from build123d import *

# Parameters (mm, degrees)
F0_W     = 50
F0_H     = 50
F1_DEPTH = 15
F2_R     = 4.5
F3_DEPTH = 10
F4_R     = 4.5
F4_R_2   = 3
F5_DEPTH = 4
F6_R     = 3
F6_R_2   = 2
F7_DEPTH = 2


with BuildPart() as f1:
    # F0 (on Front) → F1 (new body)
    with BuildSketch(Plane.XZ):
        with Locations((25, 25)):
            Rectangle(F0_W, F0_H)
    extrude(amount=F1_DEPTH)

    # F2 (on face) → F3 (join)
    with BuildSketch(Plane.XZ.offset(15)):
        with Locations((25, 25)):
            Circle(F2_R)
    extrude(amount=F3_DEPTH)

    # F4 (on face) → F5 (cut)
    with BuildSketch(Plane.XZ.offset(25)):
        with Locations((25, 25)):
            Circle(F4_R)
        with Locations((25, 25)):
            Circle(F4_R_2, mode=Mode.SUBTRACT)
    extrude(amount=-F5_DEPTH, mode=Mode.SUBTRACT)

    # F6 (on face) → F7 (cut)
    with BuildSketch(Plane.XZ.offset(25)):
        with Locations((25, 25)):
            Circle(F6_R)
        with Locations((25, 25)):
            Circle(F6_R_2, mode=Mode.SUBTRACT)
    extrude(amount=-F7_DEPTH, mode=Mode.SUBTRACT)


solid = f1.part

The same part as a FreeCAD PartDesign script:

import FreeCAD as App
import Part
import Sketcher

doc = App.newDocument("Part")
body = doc.addObject("PartDesign::Body", "Body")

# Sketch on XZ plane
sketch1 = body.newObject("Sketcher::SketchObject", "Sketch")
sketch1.AttachmentSupport = (doc.getObject("XZ_Plane"), [""])
sketch1.MapMode = "FlatFace"
sketch1.addGeometry(Part.LineSegment(App.Vector(0, 50, 0), App.Vector(0, 0, 0)), False)
sketch1.addGeometry(Part.LineSegment(App.Vector(0, 0, 0), App.Vector(50, 0, 0)), False)
sketch1.addGeometry(Part.LineSegment(App.Vector(50, 0, 0), App.Vector(50, 50, 0)), False)
sketch1.addGeometry(Part.LineSegment(App.Vector(50, 50, 0), App.Vector(0, 50, 0)), False)
sketch1.addConstraint(Sketcher.Constraint("Coincident", 0, 2, 1, 1))
sketch1.addConstraint(Sketcher.Constraint("Coincident", 1, 2, 2, 1))
sketch1.addConstraint(Sketcher.Constraint("Coincident", 2, 2, 3, 1))
sketch1.addConstraint(Sketcher.Constraint("Coincident", 3, 2, 0, 1))
sketch1.addConstraint(Sketcher.Constraint("Vertical", 0))
sketch1.addConstraint(Sketcher.Constraint("Horizontal", 1))
sketch1.addConstraint(Sketcher.Constraint("Vertical", 2))
sketch1.addConstraint(Sketcher.Constraint("Horizontal", 3))
sketch1.addConstraint(Sketcher.Constraint("Coincident", 0, 2, -1, 1))
sketch1.addConstraint(Sketcher.Constraint("Equal", 3, 0))
sketch1.addConstraint(Sketcher.Constraint("DistanceX", 1, 1, 1, 2, 50.0))
pad1 = body.newObject("PartDesign::Pad", "Pad")
pad1.Profile = sketch1
pad1.Length = 15

# Sketch on XZ plane
sketch2 = body.newObject("Sketcher::SketchObject", "Sketch001")
sketch2.AttachmentSupport = (doc.getObject("XZ_Plane"), [""])
sketch2.MapMode = "FlatFace"
sketch2.AttachmentOffset = App.Placement(App.Vector(0, 0, 15), App.Rotation())
sketch2.addGeometry(Part.Circle(App.Vector(25, 25, 0), App.Vector(0, 0, 1), 4.5), False)
sketch2.addConstraint(Sketcher.Constraint("Diameter", 0, 9.0))
sketch2.addConstraint(Sketcher.Constraint("DistanceX", -1, 1, 0, 3, 25.0))
sketch2.addConstraint(Sketcher.Constraint("DistanceY", -1, 1, 0, 3, 25.0))
pad2 = body.newObject("PartDesign::Pad", "Pad001")
pad2.Profile = sketch2
pad2.Length = 10

# Sketch on XZ plane
sketch3 = body.newObject("Sketcher::SketchObject", "Sketch002")
sketch3.AttachmentSupport = (doc.getObject("XZ_Plane"), [""])
sketch3.MapMode = "FlatFace"
sketch3.AttachmentOffset = App.Placement(App.Vector(0, 0, 25), App.Rotation())
sketch3.addGeometry(Part.Circle(App.Vector(25, 25, 0), App.Vector(0, 0, 1), 4.5), False)
sketch3.addGeometry(Part.Circle(App.Vector(25, 25, 0), App.Vector(0, 0, 1), 3), False)
sketch3.addConstraint(Sketcher.Constraint("Coincident", 1, 3, 0, 3))
sketch3.addConstraint(Sketcher.Constraint("Diameter", 0, 9.0))
sketch3.addConstraint(Sketcher.Constraint("Diameter", 1, 6.0))
sketch3.addConstraint(Sketcher.Constraint("DistanceX", -1, 1, 0, 3, 25.0))
sketch3.addConstraint(Sketcher.Constraint("DistanceY", -1, 1, 0, 3, 25.0))
pocket1 = body.newObject("PartDesign::Pocket", "Pocket")
pocket1.Profile = sketch3
pocket1.Length = 4

# Sketch on XZ plane
sketch4 = body.newObject("Sketcher::SketchObject", "Sketch003")
sketch4.AttachmentSupport = (doc.getObject("XZ_Plane"), [""])
sketch4.MapMode = "FlatFace"
sketch4.AttachmentOffset = App.Placement(App.Vector(0, 0, 25), App.Rotation())
sketch4.addGeometry(Part.Circle(App.Vector(25, 25, 0), App.Vector(0, 0, 1), 3), False)
sketch4.addGeometry(Part.Circle(App.Vector(25, 25, 0), App.Vector(0, 0, 1), 2), False)
sketch4.addConstraint(Sketcher.Constraint("Coincident", 1, 3, 0, 3))
sketch4.addConstraint(Sketcher.Constraint("Diameter", 0, 6.0))
sketch4.addConstraint(Sketcher.Constraint("Diameter", 1, 4.0))
sketch4.addConstraint(Sketcher.Constraint("DistanceX", -1, 1, 0, 3, 25.0))
sketch4.addConstraint(Sketcher.Constraint("DistanceY", -1, 1, 0, 3, 25.0))
pocket2 = body.newObject("PartDesign::Pocket", "Pocket001")
pocket2.Profile = sketch4
pocket2.Length = 2

doc.recompute()
